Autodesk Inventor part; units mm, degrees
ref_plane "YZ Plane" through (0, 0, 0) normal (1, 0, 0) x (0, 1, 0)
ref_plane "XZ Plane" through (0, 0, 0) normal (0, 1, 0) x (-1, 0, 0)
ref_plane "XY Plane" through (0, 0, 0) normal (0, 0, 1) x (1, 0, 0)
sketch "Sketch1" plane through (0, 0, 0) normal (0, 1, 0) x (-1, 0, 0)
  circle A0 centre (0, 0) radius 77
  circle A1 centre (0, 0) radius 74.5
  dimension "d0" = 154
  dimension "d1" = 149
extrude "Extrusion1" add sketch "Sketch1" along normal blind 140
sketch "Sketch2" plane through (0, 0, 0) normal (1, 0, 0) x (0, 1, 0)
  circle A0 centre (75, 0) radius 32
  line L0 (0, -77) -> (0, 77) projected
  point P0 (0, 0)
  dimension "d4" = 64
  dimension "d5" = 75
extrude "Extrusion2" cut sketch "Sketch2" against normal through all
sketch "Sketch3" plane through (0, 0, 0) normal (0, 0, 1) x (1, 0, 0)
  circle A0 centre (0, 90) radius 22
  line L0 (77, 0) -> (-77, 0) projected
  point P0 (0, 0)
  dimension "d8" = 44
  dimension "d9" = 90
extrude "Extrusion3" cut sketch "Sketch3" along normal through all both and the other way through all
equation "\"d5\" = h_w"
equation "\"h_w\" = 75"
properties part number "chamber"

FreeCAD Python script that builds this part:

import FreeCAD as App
import Part
import Sketcher
Q = App.Units.Quantity

doc = App.newDocument("Part")
body = doc.addObject("PartDesign::Body", "Body")

# Sketch on XZ plane
sketch1 = body.newObject("Sketcher::SketchObject", "Sketch")
sketch1.AttachmentSupport = (doc.getObject("XZ_Plane"), [""])
sketch1.MapMode = "FlatFace"
sketch1.addGeometry([
    Part.Circle(App.Vector(0, 0, 0), App.Vector(0, 0, 1), 77),
    Part.Circle(App.Vector(0, 0, 0), App.Vector(0, 0, 1), 74.5),
], False)
sketch1.addConstraint([
    Sketcher.Constraint("Coincident", 0, 3, -1, 1),
    Sketcher.Constraint("Coincident", 1, 3, -1, 1),
    Sketcher.Constraint("Diameter", 0, Q("154 mm")),
    Sketcher.Constraint("Diameter", 1, Q("149 mm")),
])
pad1 = body.newObject("PartDesign::Pad", "Pad")
pad1.Profile = sketch1
pad1.Length = 140
pad1.Reversed = True

# Sketch on YZ plane
sketch2 = body.newObject("Sketcher::SketchObject", "Sketch001")
sketch2.AttachmentSupport = (doc.getObject("YZ_Plane"), [""])
sketch2.MapMode = "FlatFace"
sketch2.addGeometry(Part.Circle(App.Vector(75, 0, 0), App.Vector(0, 0, 1), 32), False)
sketch2.addConstraint([
    Sketcher.Constraint("PointOnObject", 0, 3, -1),
    Sketcher.Constraint("Diameter", 0, Q("64 mm")),
    Sketcher.Constraint("DistanceX", -1, 1, 0, 3, Q("75 mm")),
])
pocket1 = body.newObject("PartDesign::Pocket", "Pocket")
pocket1.Profile = sketch2
pocket1.Type = "ThroughAll"

# Sketch on XY plane
sketch3 = body.newObject("Sketcher::SketchObject", "Sketch002")
sketch3.AttachmentSupport = (doc.getObject("XY_Plane"), [""])
sketch3.MapMode = "FlatFace"
sketch3.addGeometry(Part.Circle(App.Vector(0, 90, 0), App.Vector(0, 0, 1), 22), False)
sketch3.addConstraint([
    Sketcher.Constraint("PointOnObject", 0, 3, -2),
    Sketcher.Constraint("Diameter", 0, Q("44 mm")),
    Sketcher.Constraint("DistanceY", -1, 1, 0, 3, Q("90 mm")),
])
pocket2 = body.newObject("PartDesign::Pocket", "Pocket001")
pocket2.Profile = sketch3
pocket2.Type = "ThroughAll"
pocket2.Midplane = True

doc.recompute()
